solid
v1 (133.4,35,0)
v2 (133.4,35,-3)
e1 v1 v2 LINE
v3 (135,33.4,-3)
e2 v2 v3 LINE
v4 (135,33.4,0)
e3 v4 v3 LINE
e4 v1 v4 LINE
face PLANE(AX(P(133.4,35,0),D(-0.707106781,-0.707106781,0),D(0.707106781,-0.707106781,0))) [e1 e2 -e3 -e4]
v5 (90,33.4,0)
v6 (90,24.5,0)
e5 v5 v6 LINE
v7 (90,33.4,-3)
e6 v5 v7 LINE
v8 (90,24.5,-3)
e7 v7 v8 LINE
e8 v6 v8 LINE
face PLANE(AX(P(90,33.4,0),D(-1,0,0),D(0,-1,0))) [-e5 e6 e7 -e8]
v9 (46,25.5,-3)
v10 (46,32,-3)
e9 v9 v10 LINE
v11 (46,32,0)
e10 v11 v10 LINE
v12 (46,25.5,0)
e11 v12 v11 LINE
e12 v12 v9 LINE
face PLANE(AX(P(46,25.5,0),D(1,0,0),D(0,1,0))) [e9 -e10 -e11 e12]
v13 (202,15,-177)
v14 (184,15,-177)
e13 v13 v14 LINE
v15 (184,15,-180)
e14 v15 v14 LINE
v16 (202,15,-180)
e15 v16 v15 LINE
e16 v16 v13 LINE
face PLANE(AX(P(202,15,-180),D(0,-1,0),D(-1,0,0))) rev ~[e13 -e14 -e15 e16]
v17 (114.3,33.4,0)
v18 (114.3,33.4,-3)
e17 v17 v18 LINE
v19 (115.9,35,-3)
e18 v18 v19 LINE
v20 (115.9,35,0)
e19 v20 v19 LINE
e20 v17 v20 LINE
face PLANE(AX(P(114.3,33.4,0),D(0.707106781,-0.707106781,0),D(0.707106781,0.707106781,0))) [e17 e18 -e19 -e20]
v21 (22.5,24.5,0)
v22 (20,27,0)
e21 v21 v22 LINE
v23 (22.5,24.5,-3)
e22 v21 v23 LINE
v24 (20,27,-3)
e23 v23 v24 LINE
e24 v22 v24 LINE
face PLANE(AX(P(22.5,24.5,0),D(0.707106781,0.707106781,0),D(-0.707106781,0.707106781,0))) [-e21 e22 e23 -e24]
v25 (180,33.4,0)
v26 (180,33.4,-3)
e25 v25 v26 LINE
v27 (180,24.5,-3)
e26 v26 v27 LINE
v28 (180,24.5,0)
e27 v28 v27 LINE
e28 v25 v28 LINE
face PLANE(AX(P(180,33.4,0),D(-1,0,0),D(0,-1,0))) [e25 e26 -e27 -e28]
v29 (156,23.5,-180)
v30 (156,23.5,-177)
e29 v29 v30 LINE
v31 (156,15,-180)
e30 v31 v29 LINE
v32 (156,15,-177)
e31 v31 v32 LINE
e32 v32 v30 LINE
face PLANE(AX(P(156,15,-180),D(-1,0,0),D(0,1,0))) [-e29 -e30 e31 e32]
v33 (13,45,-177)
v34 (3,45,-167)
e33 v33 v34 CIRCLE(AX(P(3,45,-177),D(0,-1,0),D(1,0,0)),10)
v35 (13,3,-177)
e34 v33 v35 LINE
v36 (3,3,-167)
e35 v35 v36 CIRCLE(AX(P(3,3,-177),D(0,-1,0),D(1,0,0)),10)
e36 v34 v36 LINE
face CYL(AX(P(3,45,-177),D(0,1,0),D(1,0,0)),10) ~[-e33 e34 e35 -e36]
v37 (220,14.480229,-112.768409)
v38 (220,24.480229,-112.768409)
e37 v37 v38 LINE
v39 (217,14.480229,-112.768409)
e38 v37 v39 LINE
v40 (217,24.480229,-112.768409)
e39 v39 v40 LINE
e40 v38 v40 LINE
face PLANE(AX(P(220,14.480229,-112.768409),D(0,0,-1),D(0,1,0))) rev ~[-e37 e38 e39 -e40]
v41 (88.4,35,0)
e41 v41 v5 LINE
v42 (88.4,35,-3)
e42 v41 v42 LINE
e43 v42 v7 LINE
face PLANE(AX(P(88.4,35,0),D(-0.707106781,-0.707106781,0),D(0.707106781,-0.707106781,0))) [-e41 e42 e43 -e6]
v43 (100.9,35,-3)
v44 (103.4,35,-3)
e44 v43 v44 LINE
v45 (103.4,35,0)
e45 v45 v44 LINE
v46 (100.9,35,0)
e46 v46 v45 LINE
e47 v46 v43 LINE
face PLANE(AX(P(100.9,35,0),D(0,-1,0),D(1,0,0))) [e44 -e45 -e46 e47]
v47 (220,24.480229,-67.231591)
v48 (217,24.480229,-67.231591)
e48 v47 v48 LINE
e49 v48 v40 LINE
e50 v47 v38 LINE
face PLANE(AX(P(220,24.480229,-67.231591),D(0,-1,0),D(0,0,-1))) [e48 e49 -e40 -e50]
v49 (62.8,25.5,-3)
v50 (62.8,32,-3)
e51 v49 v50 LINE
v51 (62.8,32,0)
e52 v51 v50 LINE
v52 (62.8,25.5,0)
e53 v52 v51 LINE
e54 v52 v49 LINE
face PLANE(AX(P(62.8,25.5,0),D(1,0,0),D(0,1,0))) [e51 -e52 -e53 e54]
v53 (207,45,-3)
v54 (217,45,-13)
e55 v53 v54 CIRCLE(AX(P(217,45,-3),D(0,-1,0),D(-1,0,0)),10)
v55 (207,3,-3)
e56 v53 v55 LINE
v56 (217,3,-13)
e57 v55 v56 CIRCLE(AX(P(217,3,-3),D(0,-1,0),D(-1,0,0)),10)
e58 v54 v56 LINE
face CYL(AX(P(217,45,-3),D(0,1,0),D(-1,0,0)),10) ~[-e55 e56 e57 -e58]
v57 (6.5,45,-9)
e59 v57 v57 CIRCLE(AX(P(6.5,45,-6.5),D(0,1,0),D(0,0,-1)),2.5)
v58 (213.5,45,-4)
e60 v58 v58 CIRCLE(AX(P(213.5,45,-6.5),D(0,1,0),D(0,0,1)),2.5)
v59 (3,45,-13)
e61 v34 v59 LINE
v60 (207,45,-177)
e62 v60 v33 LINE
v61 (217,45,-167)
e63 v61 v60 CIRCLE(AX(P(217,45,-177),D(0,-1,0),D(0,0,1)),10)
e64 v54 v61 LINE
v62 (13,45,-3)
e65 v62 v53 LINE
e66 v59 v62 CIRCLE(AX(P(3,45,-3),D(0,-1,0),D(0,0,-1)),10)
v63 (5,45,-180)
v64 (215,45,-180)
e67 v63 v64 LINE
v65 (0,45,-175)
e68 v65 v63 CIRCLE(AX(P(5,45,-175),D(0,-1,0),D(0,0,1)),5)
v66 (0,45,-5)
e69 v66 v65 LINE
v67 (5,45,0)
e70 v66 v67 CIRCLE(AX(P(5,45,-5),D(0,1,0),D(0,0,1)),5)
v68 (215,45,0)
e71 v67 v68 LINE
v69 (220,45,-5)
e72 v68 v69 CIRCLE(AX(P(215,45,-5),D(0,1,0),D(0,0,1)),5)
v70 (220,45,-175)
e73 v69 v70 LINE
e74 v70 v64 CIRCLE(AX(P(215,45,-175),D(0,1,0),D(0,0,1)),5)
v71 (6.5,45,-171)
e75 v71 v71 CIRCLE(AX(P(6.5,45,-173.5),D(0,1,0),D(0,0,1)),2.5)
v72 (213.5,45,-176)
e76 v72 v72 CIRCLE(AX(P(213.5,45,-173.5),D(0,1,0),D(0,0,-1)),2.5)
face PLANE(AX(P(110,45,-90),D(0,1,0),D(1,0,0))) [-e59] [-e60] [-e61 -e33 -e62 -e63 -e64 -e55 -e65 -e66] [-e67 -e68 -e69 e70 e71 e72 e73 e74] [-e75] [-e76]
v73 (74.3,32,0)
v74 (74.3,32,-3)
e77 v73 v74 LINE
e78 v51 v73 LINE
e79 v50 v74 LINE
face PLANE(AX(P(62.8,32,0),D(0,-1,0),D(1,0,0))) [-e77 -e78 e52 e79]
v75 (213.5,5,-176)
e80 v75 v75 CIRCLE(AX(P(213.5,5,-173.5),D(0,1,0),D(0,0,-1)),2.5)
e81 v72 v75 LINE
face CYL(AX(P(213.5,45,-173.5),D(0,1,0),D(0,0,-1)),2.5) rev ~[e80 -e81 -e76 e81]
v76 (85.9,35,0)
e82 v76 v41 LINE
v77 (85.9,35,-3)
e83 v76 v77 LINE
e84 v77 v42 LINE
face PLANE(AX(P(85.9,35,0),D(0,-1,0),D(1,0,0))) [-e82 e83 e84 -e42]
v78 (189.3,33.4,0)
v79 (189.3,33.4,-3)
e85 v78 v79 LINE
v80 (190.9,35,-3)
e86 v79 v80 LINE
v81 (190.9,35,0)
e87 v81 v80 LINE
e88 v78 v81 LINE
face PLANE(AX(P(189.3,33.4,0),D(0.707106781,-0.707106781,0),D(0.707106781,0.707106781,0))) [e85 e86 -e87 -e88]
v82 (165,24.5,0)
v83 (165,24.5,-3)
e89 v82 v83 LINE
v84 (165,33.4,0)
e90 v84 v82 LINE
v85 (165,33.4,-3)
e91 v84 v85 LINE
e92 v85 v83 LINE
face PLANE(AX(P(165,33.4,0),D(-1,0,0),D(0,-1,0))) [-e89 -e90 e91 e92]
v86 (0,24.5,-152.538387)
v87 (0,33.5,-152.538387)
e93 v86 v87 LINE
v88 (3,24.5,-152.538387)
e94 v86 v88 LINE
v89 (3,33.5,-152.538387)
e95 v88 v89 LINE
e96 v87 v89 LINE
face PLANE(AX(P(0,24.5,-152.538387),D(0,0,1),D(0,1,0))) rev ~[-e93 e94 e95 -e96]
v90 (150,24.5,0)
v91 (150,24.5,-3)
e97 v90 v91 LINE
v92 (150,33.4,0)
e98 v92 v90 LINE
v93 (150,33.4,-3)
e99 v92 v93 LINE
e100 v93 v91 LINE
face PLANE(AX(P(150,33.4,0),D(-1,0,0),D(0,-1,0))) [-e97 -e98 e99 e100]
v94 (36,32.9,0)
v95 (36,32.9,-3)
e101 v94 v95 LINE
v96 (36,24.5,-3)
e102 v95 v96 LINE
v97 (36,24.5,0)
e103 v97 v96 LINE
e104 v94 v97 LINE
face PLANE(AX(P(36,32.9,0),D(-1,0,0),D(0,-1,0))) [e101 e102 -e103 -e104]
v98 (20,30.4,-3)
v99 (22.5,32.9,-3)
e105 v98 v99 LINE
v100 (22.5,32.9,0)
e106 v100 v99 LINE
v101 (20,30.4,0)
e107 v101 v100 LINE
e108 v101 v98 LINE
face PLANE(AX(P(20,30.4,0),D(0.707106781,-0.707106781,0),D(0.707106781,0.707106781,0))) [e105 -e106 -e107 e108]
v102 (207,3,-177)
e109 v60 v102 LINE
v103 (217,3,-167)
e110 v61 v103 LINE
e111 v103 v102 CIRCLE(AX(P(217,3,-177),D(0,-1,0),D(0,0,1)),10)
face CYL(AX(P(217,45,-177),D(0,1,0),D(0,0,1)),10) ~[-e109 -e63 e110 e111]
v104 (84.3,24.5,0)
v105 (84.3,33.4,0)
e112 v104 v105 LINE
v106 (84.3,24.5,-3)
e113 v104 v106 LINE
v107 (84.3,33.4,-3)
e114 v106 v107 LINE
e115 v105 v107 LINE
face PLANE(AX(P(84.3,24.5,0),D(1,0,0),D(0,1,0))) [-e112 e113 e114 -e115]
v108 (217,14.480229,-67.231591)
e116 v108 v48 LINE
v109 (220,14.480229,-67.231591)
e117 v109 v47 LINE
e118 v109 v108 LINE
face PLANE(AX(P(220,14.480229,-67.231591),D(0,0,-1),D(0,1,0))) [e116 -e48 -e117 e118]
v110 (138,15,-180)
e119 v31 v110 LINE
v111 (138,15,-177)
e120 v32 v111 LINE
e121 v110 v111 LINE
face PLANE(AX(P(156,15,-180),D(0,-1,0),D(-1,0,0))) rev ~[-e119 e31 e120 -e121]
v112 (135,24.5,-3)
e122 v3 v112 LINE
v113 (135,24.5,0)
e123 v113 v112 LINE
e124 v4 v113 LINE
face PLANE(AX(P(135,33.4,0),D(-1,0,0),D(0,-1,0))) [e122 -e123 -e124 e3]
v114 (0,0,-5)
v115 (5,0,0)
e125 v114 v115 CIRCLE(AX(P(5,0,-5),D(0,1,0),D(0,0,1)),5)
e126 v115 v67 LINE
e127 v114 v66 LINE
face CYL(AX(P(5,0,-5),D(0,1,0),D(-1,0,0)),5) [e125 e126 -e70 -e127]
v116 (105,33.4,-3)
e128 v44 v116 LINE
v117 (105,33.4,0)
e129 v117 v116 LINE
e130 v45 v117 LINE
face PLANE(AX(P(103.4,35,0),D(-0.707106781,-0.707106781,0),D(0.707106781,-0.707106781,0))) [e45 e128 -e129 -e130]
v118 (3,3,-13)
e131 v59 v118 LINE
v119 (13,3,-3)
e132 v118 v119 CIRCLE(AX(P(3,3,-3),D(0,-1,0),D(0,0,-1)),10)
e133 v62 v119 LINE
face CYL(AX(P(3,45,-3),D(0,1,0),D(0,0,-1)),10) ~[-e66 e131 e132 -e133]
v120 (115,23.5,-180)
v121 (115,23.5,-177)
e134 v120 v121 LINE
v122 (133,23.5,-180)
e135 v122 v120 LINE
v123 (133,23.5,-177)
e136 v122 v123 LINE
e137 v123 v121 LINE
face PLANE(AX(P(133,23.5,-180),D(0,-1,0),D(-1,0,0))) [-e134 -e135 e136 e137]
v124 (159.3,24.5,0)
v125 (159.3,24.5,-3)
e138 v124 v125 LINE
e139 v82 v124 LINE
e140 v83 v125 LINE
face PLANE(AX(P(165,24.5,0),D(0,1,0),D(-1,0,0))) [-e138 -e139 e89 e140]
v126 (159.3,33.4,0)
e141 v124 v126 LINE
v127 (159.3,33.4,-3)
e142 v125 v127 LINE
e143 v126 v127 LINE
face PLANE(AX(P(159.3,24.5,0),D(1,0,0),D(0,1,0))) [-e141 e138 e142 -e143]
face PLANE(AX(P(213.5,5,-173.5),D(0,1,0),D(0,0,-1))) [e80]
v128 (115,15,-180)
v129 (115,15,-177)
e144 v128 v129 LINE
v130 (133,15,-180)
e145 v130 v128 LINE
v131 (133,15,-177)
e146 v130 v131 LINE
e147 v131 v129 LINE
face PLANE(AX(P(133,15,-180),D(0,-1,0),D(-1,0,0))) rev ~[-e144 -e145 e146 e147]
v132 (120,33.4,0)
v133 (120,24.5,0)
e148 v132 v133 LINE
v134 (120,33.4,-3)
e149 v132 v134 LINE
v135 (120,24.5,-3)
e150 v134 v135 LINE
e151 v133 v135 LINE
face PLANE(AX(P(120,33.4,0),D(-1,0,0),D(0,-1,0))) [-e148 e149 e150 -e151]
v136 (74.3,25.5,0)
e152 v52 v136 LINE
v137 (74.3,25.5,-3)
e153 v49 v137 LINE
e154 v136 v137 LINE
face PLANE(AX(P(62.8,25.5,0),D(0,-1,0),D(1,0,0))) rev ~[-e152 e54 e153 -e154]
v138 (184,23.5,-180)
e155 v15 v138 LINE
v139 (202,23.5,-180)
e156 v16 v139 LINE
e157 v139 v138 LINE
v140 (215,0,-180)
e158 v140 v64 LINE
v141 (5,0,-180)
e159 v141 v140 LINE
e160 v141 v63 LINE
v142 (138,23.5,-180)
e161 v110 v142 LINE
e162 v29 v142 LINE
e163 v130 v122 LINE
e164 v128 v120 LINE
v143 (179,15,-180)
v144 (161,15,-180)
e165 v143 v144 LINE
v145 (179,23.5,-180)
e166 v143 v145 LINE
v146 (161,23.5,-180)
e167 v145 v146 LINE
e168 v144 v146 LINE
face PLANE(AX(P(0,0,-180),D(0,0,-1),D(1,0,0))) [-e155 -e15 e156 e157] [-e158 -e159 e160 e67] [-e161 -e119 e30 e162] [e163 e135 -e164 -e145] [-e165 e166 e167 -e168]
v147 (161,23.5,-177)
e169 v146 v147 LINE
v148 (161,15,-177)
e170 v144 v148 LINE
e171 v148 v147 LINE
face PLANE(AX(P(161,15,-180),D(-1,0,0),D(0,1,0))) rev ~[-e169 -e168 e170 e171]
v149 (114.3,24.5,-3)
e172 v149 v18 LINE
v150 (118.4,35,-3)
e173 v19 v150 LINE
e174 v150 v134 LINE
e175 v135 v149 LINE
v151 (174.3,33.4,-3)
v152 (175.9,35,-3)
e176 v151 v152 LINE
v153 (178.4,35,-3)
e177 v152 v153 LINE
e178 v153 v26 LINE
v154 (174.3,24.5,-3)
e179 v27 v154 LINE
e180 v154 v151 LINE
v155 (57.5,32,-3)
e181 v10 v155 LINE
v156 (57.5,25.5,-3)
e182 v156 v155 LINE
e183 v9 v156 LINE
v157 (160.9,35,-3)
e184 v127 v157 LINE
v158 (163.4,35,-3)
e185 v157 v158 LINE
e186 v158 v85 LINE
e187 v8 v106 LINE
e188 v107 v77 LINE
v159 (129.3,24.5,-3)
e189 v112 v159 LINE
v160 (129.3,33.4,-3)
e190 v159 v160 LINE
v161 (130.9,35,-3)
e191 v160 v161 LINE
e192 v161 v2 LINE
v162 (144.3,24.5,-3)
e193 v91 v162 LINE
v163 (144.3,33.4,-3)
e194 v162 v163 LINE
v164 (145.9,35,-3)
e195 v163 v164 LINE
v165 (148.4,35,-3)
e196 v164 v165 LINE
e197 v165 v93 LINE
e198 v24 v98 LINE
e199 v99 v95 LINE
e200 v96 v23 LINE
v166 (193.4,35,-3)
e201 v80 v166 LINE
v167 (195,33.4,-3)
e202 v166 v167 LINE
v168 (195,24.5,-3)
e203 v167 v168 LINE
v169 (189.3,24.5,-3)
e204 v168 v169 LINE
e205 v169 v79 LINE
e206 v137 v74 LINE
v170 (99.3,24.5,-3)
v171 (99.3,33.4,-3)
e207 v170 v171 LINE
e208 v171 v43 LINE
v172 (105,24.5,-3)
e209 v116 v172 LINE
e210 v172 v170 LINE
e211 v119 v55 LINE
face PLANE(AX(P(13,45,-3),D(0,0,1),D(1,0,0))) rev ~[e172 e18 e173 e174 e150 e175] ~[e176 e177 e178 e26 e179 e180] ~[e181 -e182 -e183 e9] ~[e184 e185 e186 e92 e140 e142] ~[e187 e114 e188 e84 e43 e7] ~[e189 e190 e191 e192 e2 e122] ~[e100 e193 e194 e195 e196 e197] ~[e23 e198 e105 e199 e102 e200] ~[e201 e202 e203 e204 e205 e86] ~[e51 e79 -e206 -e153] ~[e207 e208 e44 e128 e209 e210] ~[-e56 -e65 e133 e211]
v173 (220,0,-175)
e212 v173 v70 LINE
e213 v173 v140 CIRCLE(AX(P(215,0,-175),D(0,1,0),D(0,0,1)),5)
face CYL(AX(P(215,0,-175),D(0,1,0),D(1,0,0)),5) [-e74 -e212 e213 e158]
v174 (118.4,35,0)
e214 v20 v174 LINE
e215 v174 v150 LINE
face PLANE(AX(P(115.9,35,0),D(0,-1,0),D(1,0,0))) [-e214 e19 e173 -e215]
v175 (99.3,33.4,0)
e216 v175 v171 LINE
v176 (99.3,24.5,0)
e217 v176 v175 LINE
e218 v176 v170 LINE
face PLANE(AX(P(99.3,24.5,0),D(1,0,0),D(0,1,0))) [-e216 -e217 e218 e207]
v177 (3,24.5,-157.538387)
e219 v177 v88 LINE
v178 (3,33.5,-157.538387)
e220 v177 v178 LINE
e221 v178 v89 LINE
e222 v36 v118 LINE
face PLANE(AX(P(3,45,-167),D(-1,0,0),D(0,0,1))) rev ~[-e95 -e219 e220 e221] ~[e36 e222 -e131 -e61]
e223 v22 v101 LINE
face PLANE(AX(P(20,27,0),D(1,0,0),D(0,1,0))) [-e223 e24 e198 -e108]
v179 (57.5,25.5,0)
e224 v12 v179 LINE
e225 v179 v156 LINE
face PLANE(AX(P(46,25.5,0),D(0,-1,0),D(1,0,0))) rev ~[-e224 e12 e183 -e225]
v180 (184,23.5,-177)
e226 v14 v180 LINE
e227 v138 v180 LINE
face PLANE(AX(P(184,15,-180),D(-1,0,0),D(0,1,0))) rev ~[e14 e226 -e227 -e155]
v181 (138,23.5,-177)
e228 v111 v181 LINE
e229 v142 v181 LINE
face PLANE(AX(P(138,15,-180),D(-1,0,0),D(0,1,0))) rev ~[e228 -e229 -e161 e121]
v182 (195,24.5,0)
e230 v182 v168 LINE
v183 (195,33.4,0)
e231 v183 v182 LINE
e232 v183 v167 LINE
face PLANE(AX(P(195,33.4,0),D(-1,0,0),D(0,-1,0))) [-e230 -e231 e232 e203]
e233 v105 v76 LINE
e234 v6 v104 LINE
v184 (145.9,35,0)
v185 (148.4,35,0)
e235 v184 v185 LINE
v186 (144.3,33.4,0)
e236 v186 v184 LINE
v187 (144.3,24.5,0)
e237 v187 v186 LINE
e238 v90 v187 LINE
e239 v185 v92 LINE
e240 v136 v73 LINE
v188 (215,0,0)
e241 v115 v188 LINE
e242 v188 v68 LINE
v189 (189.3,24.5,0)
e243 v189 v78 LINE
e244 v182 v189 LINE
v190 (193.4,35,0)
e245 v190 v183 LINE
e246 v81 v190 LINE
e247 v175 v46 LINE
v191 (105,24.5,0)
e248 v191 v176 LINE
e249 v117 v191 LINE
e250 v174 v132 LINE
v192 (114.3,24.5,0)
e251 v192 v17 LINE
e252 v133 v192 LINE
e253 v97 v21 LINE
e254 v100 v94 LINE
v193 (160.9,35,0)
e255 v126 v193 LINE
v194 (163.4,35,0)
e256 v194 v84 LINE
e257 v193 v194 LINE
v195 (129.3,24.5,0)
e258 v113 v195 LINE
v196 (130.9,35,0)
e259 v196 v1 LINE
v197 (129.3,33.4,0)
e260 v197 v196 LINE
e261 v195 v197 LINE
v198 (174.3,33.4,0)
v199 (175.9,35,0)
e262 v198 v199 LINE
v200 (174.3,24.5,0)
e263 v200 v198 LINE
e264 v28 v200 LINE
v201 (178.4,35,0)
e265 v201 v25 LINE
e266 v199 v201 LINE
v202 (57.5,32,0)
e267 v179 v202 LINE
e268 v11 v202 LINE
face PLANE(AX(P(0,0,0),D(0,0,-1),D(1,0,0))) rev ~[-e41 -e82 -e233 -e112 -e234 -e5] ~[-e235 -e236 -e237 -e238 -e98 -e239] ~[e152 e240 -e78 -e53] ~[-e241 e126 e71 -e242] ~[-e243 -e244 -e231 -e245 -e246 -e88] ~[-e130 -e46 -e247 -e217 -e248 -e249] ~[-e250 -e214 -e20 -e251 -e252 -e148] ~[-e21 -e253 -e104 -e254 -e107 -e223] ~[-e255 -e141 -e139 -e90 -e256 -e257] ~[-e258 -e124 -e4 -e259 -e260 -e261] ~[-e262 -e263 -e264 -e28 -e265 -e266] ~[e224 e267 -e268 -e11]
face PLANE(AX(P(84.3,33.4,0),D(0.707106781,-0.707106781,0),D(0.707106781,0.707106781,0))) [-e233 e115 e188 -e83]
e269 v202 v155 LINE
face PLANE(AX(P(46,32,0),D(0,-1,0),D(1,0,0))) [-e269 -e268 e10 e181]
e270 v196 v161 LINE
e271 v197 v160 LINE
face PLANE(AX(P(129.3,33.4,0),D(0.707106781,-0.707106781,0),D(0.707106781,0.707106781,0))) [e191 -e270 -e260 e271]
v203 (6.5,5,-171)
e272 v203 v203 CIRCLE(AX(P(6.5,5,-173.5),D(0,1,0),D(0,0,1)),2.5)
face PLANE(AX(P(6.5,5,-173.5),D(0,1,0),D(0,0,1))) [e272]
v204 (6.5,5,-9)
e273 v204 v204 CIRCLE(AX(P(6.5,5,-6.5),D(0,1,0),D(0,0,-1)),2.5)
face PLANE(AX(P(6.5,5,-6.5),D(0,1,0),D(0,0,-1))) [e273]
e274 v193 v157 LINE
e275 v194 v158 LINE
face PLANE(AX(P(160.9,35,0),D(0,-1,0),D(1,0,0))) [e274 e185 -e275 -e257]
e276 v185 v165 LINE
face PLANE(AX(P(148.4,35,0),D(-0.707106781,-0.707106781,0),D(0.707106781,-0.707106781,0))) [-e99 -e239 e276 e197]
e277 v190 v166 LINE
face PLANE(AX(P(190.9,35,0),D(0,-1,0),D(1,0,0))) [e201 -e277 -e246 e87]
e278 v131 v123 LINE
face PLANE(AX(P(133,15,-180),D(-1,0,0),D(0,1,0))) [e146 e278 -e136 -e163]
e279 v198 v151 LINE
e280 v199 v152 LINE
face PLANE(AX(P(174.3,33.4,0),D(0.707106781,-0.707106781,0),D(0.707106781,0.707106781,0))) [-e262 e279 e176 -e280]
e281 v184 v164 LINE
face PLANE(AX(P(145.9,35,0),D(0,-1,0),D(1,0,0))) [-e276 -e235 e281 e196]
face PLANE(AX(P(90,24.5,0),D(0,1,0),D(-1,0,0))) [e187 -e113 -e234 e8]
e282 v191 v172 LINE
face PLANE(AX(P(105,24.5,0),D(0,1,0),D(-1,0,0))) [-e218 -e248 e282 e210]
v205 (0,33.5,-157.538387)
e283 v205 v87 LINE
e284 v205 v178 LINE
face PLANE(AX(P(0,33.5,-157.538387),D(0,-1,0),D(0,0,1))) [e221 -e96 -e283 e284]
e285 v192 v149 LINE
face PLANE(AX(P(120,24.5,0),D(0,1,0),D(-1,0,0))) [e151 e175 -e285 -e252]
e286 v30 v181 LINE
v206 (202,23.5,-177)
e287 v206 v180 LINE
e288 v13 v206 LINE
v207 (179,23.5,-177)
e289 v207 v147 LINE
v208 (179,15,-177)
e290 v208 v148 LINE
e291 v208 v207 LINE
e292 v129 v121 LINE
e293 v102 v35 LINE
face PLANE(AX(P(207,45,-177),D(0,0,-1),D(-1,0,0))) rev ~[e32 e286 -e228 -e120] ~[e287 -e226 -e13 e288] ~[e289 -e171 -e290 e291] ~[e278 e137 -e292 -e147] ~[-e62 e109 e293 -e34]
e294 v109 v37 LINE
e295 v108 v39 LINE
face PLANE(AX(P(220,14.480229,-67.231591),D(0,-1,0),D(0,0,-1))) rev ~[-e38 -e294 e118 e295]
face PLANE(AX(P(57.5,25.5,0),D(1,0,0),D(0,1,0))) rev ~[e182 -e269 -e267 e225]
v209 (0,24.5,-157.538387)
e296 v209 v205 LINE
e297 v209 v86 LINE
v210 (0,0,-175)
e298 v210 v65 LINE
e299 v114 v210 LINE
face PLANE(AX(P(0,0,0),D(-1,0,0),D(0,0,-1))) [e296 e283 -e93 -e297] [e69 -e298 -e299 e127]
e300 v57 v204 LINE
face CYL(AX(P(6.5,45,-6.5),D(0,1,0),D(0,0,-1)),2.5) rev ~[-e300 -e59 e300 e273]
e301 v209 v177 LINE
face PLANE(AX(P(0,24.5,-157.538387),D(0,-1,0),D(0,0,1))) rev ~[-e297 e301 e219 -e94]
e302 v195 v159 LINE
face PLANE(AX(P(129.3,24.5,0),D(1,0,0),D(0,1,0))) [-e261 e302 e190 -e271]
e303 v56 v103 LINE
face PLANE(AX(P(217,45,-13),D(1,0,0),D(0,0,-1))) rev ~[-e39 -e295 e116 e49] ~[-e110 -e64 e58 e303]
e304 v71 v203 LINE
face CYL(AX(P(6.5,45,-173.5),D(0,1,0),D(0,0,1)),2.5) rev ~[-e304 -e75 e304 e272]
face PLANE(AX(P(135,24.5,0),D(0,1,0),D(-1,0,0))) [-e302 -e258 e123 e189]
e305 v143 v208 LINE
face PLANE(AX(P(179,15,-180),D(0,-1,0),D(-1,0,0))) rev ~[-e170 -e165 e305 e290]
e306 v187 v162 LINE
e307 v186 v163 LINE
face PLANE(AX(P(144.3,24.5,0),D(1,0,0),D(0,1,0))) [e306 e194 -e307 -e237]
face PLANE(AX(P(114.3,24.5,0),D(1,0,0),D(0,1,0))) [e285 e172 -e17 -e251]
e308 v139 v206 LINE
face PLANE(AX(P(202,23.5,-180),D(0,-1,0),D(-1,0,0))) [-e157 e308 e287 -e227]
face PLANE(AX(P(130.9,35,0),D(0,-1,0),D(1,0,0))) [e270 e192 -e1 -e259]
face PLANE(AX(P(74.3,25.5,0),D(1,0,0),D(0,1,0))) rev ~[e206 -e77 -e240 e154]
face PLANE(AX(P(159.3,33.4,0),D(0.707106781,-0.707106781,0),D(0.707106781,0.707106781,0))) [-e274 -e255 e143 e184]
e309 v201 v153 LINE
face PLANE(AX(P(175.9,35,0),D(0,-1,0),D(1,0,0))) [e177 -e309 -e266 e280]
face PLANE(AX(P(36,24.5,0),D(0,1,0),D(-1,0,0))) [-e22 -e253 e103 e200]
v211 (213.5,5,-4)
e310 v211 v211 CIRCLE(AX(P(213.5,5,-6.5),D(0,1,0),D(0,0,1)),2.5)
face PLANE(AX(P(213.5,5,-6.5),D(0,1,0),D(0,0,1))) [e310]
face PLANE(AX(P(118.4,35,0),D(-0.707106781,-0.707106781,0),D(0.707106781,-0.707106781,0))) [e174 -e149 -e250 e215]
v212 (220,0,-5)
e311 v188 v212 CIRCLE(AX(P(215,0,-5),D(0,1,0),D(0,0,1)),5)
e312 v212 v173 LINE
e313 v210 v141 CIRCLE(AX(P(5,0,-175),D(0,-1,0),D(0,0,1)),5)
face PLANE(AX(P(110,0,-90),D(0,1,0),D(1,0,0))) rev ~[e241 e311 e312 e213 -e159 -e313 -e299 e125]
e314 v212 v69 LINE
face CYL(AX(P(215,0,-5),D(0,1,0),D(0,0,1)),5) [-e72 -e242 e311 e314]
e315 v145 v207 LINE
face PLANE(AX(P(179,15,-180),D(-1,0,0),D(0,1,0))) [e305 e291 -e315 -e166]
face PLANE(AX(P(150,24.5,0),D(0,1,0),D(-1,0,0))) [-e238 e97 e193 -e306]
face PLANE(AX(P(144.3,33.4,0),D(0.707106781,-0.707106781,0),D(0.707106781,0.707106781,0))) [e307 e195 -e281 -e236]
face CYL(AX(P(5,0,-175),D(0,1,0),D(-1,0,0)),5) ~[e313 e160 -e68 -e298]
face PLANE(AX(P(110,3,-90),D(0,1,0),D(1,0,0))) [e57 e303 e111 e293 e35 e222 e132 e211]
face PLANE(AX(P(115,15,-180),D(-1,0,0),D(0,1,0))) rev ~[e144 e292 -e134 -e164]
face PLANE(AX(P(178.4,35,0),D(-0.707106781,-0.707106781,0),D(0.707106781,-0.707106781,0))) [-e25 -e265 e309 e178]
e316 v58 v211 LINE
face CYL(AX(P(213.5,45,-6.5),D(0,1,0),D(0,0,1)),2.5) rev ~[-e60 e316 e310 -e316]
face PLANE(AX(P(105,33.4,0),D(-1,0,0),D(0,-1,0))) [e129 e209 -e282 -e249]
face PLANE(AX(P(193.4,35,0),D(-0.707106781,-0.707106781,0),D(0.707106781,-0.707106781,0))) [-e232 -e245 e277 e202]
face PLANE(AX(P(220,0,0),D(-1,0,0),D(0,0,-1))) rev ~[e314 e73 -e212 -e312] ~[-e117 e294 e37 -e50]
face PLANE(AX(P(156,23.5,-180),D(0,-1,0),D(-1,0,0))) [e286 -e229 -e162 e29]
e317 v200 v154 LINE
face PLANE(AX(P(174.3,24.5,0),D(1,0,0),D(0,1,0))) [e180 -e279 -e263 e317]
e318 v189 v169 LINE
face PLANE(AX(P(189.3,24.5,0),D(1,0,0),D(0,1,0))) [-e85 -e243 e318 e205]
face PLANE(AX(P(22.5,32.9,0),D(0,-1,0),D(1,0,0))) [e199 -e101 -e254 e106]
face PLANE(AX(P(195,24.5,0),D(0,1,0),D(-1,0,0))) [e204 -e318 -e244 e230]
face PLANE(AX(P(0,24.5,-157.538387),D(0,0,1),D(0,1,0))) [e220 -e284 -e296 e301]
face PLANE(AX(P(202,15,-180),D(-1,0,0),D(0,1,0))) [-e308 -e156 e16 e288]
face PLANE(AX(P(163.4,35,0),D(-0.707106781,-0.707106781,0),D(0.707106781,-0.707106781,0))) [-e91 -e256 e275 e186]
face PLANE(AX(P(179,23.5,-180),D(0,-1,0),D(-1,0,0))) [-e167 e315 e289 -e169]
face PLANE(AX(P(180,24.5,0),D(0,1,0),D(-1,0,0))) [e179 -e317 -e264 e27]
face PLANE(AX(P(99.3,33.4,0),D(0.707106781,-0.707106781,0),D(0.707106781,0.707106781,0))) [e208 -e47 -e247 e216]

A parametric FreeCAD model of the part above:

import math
import FreeCAD as App
import Part
import Sketcher

V = App.Vector


def edges_at(feature, points):
    """Names of the edges that pass closest to the given points."""
    edges = feature.Shape.Edges
    near = lambda p: min(range(len(edges)), key=lambda i: edges[i].distToShape(Part.Vertex(*p))[0])
    return sorted({f"Edge{near(p) + 1}" for p in points})

doc = App.newDocument("Part")
body = doc.addObject("PartDesign::Body", "Body")

# Sketch on XZ plane
sketch1 = body.newObject("Sketcher::SketchObject", "Sketch")
sketch1.AttachmentSupport = (doc.getObject("XZ_Plane"), [""])
sketch1.MapMode = "FlatFace"
sketch1.addGeometry([
    Part.LineSegment(V(0, -180, 0), V(0, 0, 0)),
    Part.LineSegment(V(0, 0, 0), V(220, 0, 0)),
    Part.LineSegment(V(220, 0, 0), V(220, -180, 0)),
    Part.LineSegment(V(220, -180, 0), V(0, -180, 0)),
], False)
sketch1.addConstraint([
    Sketcher.Constraint("Coincident", 0, 2, 1, 1),
    Sketcher.Constraint("Coincident", 1, 2, 2, 1),
    Sketcher.Constraint("Coincident", 2, 2, 3, 1),
    Sketcher.Constraint("Coincident", 3, 2, 0, 1),
    Sketcher.Constraint("Vertical", 0),
    Sketcher.Constraint("Horizontal", 1),
    Sketcher.Constraint("Vertical", 2),
    Sketcher.Constraint("Horizontal", 3),
    Sketcher.Constraint("Coincident", 0, 2, -1, 1),
    Sketcher.Constraint("DistanceX", 1, 1, 1, 2, 220.0),
    Sketcher.Constraint("DistanceY", 0, 1, 0, 2, 180.0),
])
pad1 = body.newObject("PartDesign::Pad", "Pad")
pad1.Profile = sketch1
pad1.Length = 45
pad1.Reversed = True
doc.recompute()

fillet = body.newObject("PartDesign::Fillet", "Fillet")
fillet.Base = (pad1, edges_at(pad1, [
    (0, 22.5, -180),
    (220, 22.5, -180),
    (220, 22.5, 0),
    (0, 22.5, 0),
]))
fillet.Radius = 5

# Sketch on XZ plane
sketch2 = body.newObject("Sketcher::SketchObject", "Sketch001")
sketch2.AttachmentSupport = (doc.getObject("XZ_Plane"), [""])
sketch2.MapMode = "FlatFace"
sketch2.AttachmentOffset = App.Placement(V(0, 0, -45), App.Rotation())
sketch2.addGeometry([
    Part.LineSegment(V(207, -177, 0), V(13, -177, 0)),  # 0
    Part.ArcOfCircle(Part.Circle(V(3, -177, 0), V(0, 0, 1), 10), math.radians(0), math.radians(90)),  # 1
    Part.LineSegment(V(3, -167, 0), V(3, -13, 0)),  # 2
    Part.ArcOfCircle(Part.Circle(V(3, -3, 0), V(0, 0, 1), 10), math.radians(-90), math.radians(0)),  # 3
    Part.LineSegment(V(13, -3, 0), V(207, -3, 0)),  # 4
    Part.ArcOfCircle(Part.Circle(V(217, -3, 0), V(0, 0, 1), 10), math.radians(180), math.radians(270)),  # 5
    Part.LineSegment(V(217, -13, 0), V(217, -167, 0)),  # 6
    Part.ArcOfCircle(Part.Circle(V(217, -177, 0), V(0, 0, 1), 10), math.radians(90), math.radians(180)),  # 7
], False)
sketch2.addConstraint([
    Sketcher.Constraint("Coincident", 0, 2, 1, 1),
    Sketcher.Constraint("Coincident", 1, 2, 2, 1),
    Sketcher.Constraint("Coincident", 2, 2, 3, 1),
    Sketcher.Constraint("Coincident", 3, 2, 4, 1),
    Sketcher.Constraint("Coincident", 4, 2, 5, 1),
    Sketcher.Constraint("Coincident", 5, 2, 6, 1),
    Sketcher.Constraint("Coincident", 6, 2, 7, 1),
    Sketcher.Constraint("Coincident", 7, 2, 0, 1),
    Sketcher.Constraint("Horizontal", 0),
    Sketcher.Constraint("Vertical", 2),
    Sketcher.Constraint("Horizontal", 4),
    Sketcher.Constraint("Vertical", 6),
    Sketcher.Constraint("Equal", 1, 3),
    Sketcher.Constraint("Equal", 3, 5),
    Sketcher.Constraint("Equal", 5, 7),
    Sketcher.Constraint("Horizontal", 3, 3, 5, 3),
    Sketcher.Constraint("Horizontal", 1, 3, 7, 3),
    Sketcher.Constraint("Horizontal", 7, 3, 0, 2),
    Sketcher.Constraint("Horizontal", 5, 3, 3, 2),
    Sketcher.Constraint("Vertical", 1, 3, 3, 3),
    Sketcher.Constraint("Vertical", 5, 3, 7, 3),
    Sketcher.Constraint("Vertical", 3, 3, 1, 2),
    Sketcher.Constraint("Vertical", 7, 3, 5, 2),
    Sketcher.Constraint("Radius", 1, 10.0),
    Sketcher.Constraint("DistanceX", 0, 2, 0, 1, 194.0),
    Sketcher.Constraint("DistanceY", 2, 1, 2, 2, 154.0),
    Sketcher.Constraint("DistanceX", -1, 1, 1, 3, 3.0),
    Sketcher.Constraint("DistanceY", 1, 3, -1, 1, 177.0),
])
pocket1 = body.newObject("PartDesign::Pocket", "Pocket")
pocket1.Profile = sketch2
pocket1.Length = 42
pocket1.Reversed = True

# Sketch on XY plane
sketch3 = body.newObject("Sketcher::SketchObject", "Sketch002")
sketch3.AttachmentSupport = (doc.getObject("XY_Plane"), [""])
sketch3.MapMode = "FlatFace"
sketch3.addGeometry([
    Part.LineSegment(V(178.4, 35, 0), V(175.9, 35, 0)),  # 0
    Part.LineSegment(V(175.9, 35, 0), V(174.3, 33.4, 0)),  # 1
    Part.LineSegment(V(174.3, 33.4, 0), V(174.3, 24.5, 0)),  # 2
    Part.LineSegment(V(174.3, 24.5, 0), V(180, 24.5, 0)),  # 3
    Part.LineSegment(V(180, 24.5, 0), V(180, 33.4, 0)),  # 4
    Part.LineSegment(V(180, 33.4, 0), V(178.4, 35, 0)),  # 5
    Part.LineSegment(V(193.4, 35, 0), V(190.9, 35, 0)),  # 6
    Part.LineSegment(V(190.9, 35, 0), V(189.3, 33.4, 0)),  # 7
    Part.LineSegment(V(189.3, 33.4, 0), V(189.3, 24.5, 0)),  # 8
    Part.LineSegment(V(189.3, 24.5, 0), V(195, 24.5, 0)),  # 9
    Part.LineSegment(V(195, 24.5, 0), V(195, 33.4, 0)),  # 10
    Part.LineSegment(V(195, 33.4, 0), V(193.4, 35, 0)),  # 11
    Part.LineSegment(V(163.4, 35, 0), V(160.9, 35, 0)),  # 12
    Part.LineSegment(V(160.9, 35, 0), V(159.3, 33.4, 0)),  # 13
    Part.LineSegment(V(159.3, 33.4, 0), V(159.3, 24.5, 0)),  # 14
    Part.LineSegment(V(159.3, 24.5, 0), V(165, 24.5, 0)),  # 15
    Part.LineSegment(V(165, 24.5, 0), V(165, 33.4, 0)),  # 16
    Part.LineSegment(V(165, 33.4, 0), V(163.4, 35, 0)),  # 17
    Part.LineSegment(V(148.4, 35, 0), V(145.9, 35, 0)),  # 18
    Part.LineSegment(V(145.9, 35, 0), V(144.3, 33.4, 0)),  # 19
    Part.LineSegment(V(144.3, 33.4, 0), V(144.3, 24.5, 0)),  # 20
    Part.LineSegment(V(144.3, 24.5, 0), V(150, 24.5, 0)),  # 21
    Part.LineSegment(V(150, 24.5, 0), V(150, 33.4, 0)),  # 22
    Part.LineSegment(V(150, 33.4, 0), V(148.4, 35, 0)),  # 23
    Part.LineSegment(V(133.4, 35, 0), V(130.9, 35, 0)),  # 24
    Part.LineSegment(V(130.9, 35, 0), V(129.3, 33.4, 0)),  # 25
    Part.LineSegment(V(129.3, 33.4, 0), V(129.3, 24.5, 0)),  # 26
    Part.LineSegment(V(129.3, 24.5, 0), V(135, 24.5, 0)),  # 27
    Part.LineSegment(V(135, 24.5, 0), V(135, 33.4, 0)),  # 28
    Part.LineSegment(V(135, 33.4, 0), V(133.4, 35, 0)),  # 29
    Part.LineSegment(V(118.4, 35, 0), V(115.9, 35, 0)),  # 30
    Part.LineSegment(V(115.9, 35, 0), V(114.3, 33.4, 0)),  # 31
    Part.LineSegment(V(114.3, 33.4, 0), V(114.3, 24.5, 0)),  # 32
    Part.LineSegment(V(114.3, 24.5, 0), V(120, 24.5, 0)),  # 33
    Part.LineSegment(V(120, 24.5, 0), V(120, 33.4, 0)),  # 34
    Part.LineSegment(V(120, 33.4, 0), V(118.4, 35, 0)),  # 35
    Part.LineSegment(V(103.4, 35, 0), V(100.9, 35, 0)),  # 36
    Part.LineSegment(V(100.9, 35, 0), V(99.3, 33.4, 0)),  # 37
    Part.LineSegment(V(99.3, 33.4, 0), V(99.3, 24.5, 0)),  # 38
    Part.LineSegment(V(99.3, 24.5, 0), V(105, 24.5, 0)),  # 39
    Part.LineSegment(V(105, 24.5, 0), V(105, 33.4, 0)),  # 40
    Part.LineSegment(V(105, 33.4, 0), V(103.4, 35, 0)),  # 41
    Part.LineSegment(V(88.4, 35, 0), V(85.9, 35, 0)),  # 42
    Part.LineSegment(V(85.9, 35, 0), V(84.3, 33.4, 0)),  # 43
    Part.LineSegment(V(84.3, 33.4, 0), V(84.3, 24.5, 0)),  # 44
    Part.LineSegment(V(84.3, 24.5, 0), V(90, 24.5, 0)),  # 45
    Part.LineSegment(V(90, 24.5, 0), V(90, 33.4, 0)),  # 46
    Part.LineSegment(V(90, 33.4, 0), V(88.4, 35, 0)),  # 47
], False)
sketch3.addConstraint([
    Sketcher.Constraint("Coincident", 0, 2, 1, 1),
    Sketcher.Constraint("Coincident", 1, 2, 2, 1),
    Sketcher.Constraint("Coincident", 2, 2, 3, 1),
    Sketcher.Constraint("Coincident", 3, 2, 4, 1),
    Sketcher.Constraint("Coincident", 4, 2, 5, 1),
    Sketcher.Constraint("Coincident", 5, 2, 0, 1),
    Sketcher.Constraint("Coincident", 6, 2, 7, 1),
    Sketcher.Constraint("Coincident", 7, 2, 8, 1),
    Sketcher.Constraint("Coincident", 8, 2, 9, 1),
    Sketcher.Constraint("Coincident", 9, 2, 10, 1),
    Sketcher.Constraint("Coincident", 10, 2, 11, 1),
    Sketcher.Constraint("Coincident", 11, 2, 6, 1),
    Sketcher.Constraint("Coincident", 12, 2, 13, 1),
    Sketcher.Constraint("Coincident", 13, 2, 14, 1),
    Sketcher.Constraint("Coincident", 14, 2, 15, 1),
    Sketcher.Constraint("Coincident", 15, 2, 16, 1),
    Sketcher.Constraint("Coincident", 16, 2, 17, 1),
    Sketcher.Constraint("Coincident", 17, 2, 12, 1),
    Sketcher.Constraint("Coincident", 18, 2, 19, 1),
    Sketcher.Constraint("Coincident", 19, 2, 20, 1),
    Sketcher.Constraint("Coincident", 20, 2, 21, 1),
    Sketcher.Constraint("Coincident", 21, 2, 22, 1),
    Sketcher.Constraint("Coincident", 22, 2, 23, 1),
    Sketcher.Constraint("Coincident", 23, 2, 18, 1),
    Sketcher.Constraint("Coincident", 24, 2, 25, 1),
    Sketcher.Constraint("Coincident", 25, 2, 26, 1),
    Sketcher.Constraint("Coincident", 26, 2, 27, 1),
    Sketcher.Constraint("Coincident", 27, 2, 28, 1),
    Sketcher.Constraint("Coincident", 28, 2, 29, 1),
    Sketcher.Constraint("Coincident", 29, 2, 24, 1),
    Sketcher.Constraint("Coincident", 30, 2, 31, 1),
    Sketcher.Constraint("Coincident", 31, 2, 32, 1),
    Sketcher.Constraint("Coincident", 32, 2, 33, 1),
    Sketcher.Constraint("Coincident", 33, 2, 34, 1),
    Sketcher.Constraint("Coincident", 34, 2, 35, 1),
    Sketcher.Constraint("Coincident", 35, 2, 30, 1),
    Sketcher.Constraint("Coincident", 36, 2, 37, 1),
    Sketcher.Constraint("Coincident", 37, 2, 38, 1),
    Sketcher.Constraint("Coincident", 38, 2, 39, 1),
    Sketcher.Constraint("Coincident", 39, 2, 40, 1),
    Sketcher.Constraint("Coincident", 40, 2, 41, 1),
    Sketcher.Constraint("Coincident", 41, 2, 36, 1),
    Sketcher.Constraint("Coincident", 42, 2, 43, 1),
    Sketcher.Constraint("Coincident", 43, 2, 44, 1),
    Sketcher.Constraint("Coincident", 44, 2, 45, 1),
    Sketcher.Constraint("Coincident", 45, 2, 46, 1),
    Sketcher.Constraint("Coincident", 46, 2, 47, 1),
    Sketcher.Constraint("Coincident", 47, 2, 42, 1),
    Sketcher.Constraint("Horizontal", 0),
    Sketcher.Constraint("Vertical", 2),
    Sketcher.Constraint("Horizontal", 3),
    Sketcher.Constraint("Vertical", 4),
    Sketcher.Constraint("Horizontal", 6),
    Sketcher.Constraint("Vertical", 8),
    Sketcher.Constraint("Horizontal", 9),
    Sketcher.Constraint("Vertical", 10),
    Sketcher.Constraint("Horizontal", 12),
    Sketcher.Constraint("Vertical", 14),
    Sketcher.Constraint("Horizontal", 15),
    Sketcher.Constraint("Vertical", 16),
    Sketcher.Constraint("Horizontal", 18),
    Sketcher.Constraint("Vertical", 20),
    Sketcher.Constraint("Horizontal", 21),
    Sketcher.Constraint("Vertical", 22),
    Sketcher.Constraint("Horizontal", 24),
    Sketcher.Constraint("Vertical", 26),
    Sketcher.Constraint("Horizontal", 27),
    Sketcher.Constraint("Vertical", 28),
    Sketcher.Constraint("Horizontal", 30),
    Sketcher.Constraint("Vertical", 32),
    Sketcher.Constraint("Horizontal", 33),
    Sketcher.Constraint("Vertical", 34),
    Sketcher.Constraint("Horizontal", 36),
    Sketcher.Constraint("Vertical", 38),
    Sketcher.Constraint("Horizontal", 39),
    Sketcher.Constraint("Vertical", 40),
    Sketcher.Constraint("Horizontal", 42),
    Sketcher.Constraint("Vertical", 44),
    Sketcher.Constraint("Horizontal", 45),
    Sketcher.Constraint("Vertical", 46),
    Sketcher.Constraint("Perpendicular", 1, 5),
    Sketcher.Constraint("Perpendicular", 5, 7),
    Sketcher.Constraint("Perpendicular", 7, 11),
    Sketcher.Constraint("Perpendicular", 11, 13),
    Sketcher.Constraint("Perpendicular", 13, 17),
    Sketcher.Constraint("Perpendicular", 17, 19),
    Sketcher.Constraint("Perpendicular", 19, 23),
    Sketcher.Constraint("Perpendicular", 23, 25),
    Sketcher.Constraint("Perpendicular", 25, 29),
    Sketcher.Constraint("Perpendicular", 29, 31),
    Sketcher.Constraint("Perpendicular", 31, 35),
    Sketcher.Constraint("Perpendicular", 35, 37),
    Sketcher.Constraint("Perpendicular", 37, 41),
    Sketcher.Constraint("Perpendicular", 41, 43),
    Sketcher.Constraint("Perpendicular", 43, 47),
    Sketcher.Constraint("Horizontal", 1, 2, 4, 2),
    Sketcher.Constraint("Horizontal", 5, 2, 6, 2),
    Sketcher.Constraint("Horizontal", 4, 2, 7, 2),
    Sketcher.Constraint("Horizontal", 3, 2, 8, 2),
    Sketcher.Constraint("Horizontal", 7, 2, 10, 2),
    Sketcher.Constraint("Horizontal", 11, 2, 12, 2),
    Sketcher.Constraint("Horizontal", 10, 2, 13, 2),
    Sketcher.Constraint("Horizontal", 9, 2, 14, 2),
    Sketcher.Constraint("Horizontal", 13, 2, 16, 2),
    Sketcher.Constraint("Horizontal", 17, 2, 18, 2),
    Sketcher.Constraint("Horizontal", 16, 2, 19, 2),
    Sketcher.Constraint("Horizontal", 15, 2, 20, 2),
    Sketcher.Constraint("Horizontal", 19, 2, 22, 2),
    Sketcher.Constraint("Horizontal", 23, 2, 24, 2),
    Sketcher.Constraint("Horizontal", 22, 2, 25, 2),
    Sketcher.Constraint("Horizontal", 21, 2, 26, 2),
    Sketcher.Constraint("Horizontal", 25, 2, 28, 2),
    Sketcher.Constraint("Horizontal", 29, 2, 30, 2),
    Sketcher.Constraint("Horizontal", 28, 2, 31, 2),
    Sketcher.Constraint("Horizontal", 27, 2, 32, 2),
    Sketcher.Constraint("Horizontal", 31, 2, 34, 2),
    Sketcher.Constraint("Horizontal", 35, 2, 36, 2),
    Sketcher.Constraint("Horizontal", 34, 2, 37, 2),
    Sketcher.Constraint("Horizontal", 33, 2, 38, 2),
    Sketcher.Constraint("Horizontal", 37, 2, 40, 2),
    Sketcher.Constraint("Horizontal", 41, 2, 42, 2),
    Sketcher.Constraint("Horizontal", 40, 2, 43, 2),
    Sketcher.Constraint("Horizontal", 39, 2, 44, 2),
    Sketcher.Constraint("Horizontal", 43, 2, 46, 2),
    Sketcher.Constraint("Equal", 0, 6),
    Sketcher.Constraint("Equal", 6, 12),
    Sketcher.Constraint("Equal", 12, 18),
    Sketcher.Constraint("Equal", 18, 24),
    Sketcher.Constraint("Equal", 24, 30),
    Sketcher.Constraint("Equal", 30, 36),
    Sketcher.Constraint("Equal", 36, 42),
    Sketcher.Constraint("Equal", 1, 5),
    Sketcher.Constraint("DistanceX", 0, 2, 0, 1, 2.5),
    Sketcher.Constraint("DistanceX", 3, 1, 3, 2, 5.7),
    Sketcher.Constraint("DistanceY", 2, 2, 2, 1, 8.9),
    Sketcher.Constraint("DistanceY", -1, 1, 0, 2, 35.0),
    Sketcher.Constraint("DistanceX", -1, 1, 3, 2, 180.0),
    Sketcher.Constraint("DistanceX", -1, 1, 9, 2, 195.0),
    Sketcher.Constraint("DistanceX", -1, 1, 15, 2, 165.0),
    Sketcher.Constraint("DistanceX", -1, 1, 21, 2, 150.0),
    Sketcher.Constraint("DistanceX", -1, 1, 27, 2, 135.0),
    Sketcher.Constraint("DistanceX", -1, 1, 33, 2, 120.0),
    Sketcher.Constraint("DistanceX", -1, 1, 39, 2, 105.0),
    Sketcher.Constraint("DistanceX", -1, 1, 45, 2, 90.0),
])
pocket2 = body.newObject("PartDesign::Pocket", "Pocket001")
pocket2.Profile = sketch3
pocket2.Length = 5

# Sketch on XY plane
sketch4 = body.newObject("Sketcher::SketchObject", "Sketch003")
sketch4.AttachmentSupport = (doc.getObject("XY_Plane"), [""])
sketch4.MapMode = "FlatFace"
sketch4.addGeometry([
    Part.LineSegment(V(36, 32.9, 0), V(22.5, 32.9, 0)),  # 0
    Part.LineSegment(V(22.5, 32.9, 0), V(20, 30.4, 0)),  # 1
    Part.LineSegment(V(20, 30.4, 0), V(20, 27, 0)),  # 2
    Part.LineSegment(V(20, 27, 0), V(22.5, 24.5, 0)),  # 3
    Part.LineSegment(V(22.5, 24.5, 0), V(36, 24.5, 0)),  # 4
    Part.LineSegment(V(36, 24.5, 0), V(36, 32.9, 0)),  # 5
], False)
sketch4.addConstraint([
    Sketcher.Constraint("Coincident", 0, 2, 1, 1),
    Sketcher.Constraint("Coincident", 1, 2, 2, 1),
    Sketcher.Constraint("Coincident", 2, 2, 3, 1),
    Sketcher.Constraint("Coincident", 3, 2, 4, 1),
    Sketcher.Constraint("Coincident", 4, 2, 5, 1),
    Sketcher.Constraint("Coincident", 5, 2, 0, 1),
    Sketcher.Constraint("Horizontal", 0),
    Sketcher.Constraint("Vertical", 2),
    Sketcher.Constraint("Horizontal", 4),
    Sketcher.Constraint("Vertical", 5),
    Sketcher.Constraint("Perpendicular", 1, 3),
    Sketcher.Constraint("Vertical", 0, 2, 3, 2),
    Sketcher.Constraint("Equal", 1, 3),
    Sketcher.Constraint("DistanceX", 0, 2, 0, 1, 13.5),
    Sketcher.Constraint("DistanceY", 2, 2, 2, 1, 3.4),
    Sketcher.Constraint("DistanceY", 5, 1, 5, 2, 8.4),
    Sketcher.Constraint("DistanceX", -1, 1, 1, 2, 20.0),
    Sketcher.Constraint("DistanceY", -1, 1, 2, 2, 27.0),
])
pocket3 = body.newObject("PartDesign::Pocket", "Pocket002")
pocket3.Profile = sketch4
pocket3.Length = 5

# Sketch on XY plane
sketch5 = body.newObject("Sketcher::SketchObject", "Sketch004")
sketch5.AttachmentSupport = (doc.getObject("XY_Plane"), [""])
sketch5.MapMode = "FlatFace"
sketch5.addGeometry([
    Part.LineSegment(V(46, 32, 0), V(46, 25.5, 0)),  # 0
    Part.LineSegment(V(46, 25.5, 0), V(57.5, 25.5, 0)),  # 1
    Part.LineSegment(V(57.5, 25.5, 0), V(57.5, 32, 0)),  # 2
    Part.LineSegment(V(57.5, 32, 0), V(46, 32, 0)),  # 3
    Part.LineSegment(V(62.8, 32, 0), V(62.8, 25.5, 0)),  # 4
    Part.LineSegment(V(62.8, 25.5, 0), V(74.3, 25.5, 0)),  # 5
    Part.LineSegment(V(74.3, 25.5, 0), V(74.3, 32, 0)),  # 6
    Part.LineSegment(V(74.3, 32, 0), V(62.8, 32, 0)),  # 7
], False)
sketch5.addConstraint([
    Sketcher.Constraint("Coincident", 0, 2, 1, 1),
    Sketcher.Constraint("Coincident", 1, 2, 2, 1),
    Sketcher.Constraint("Coincident", 2, 2, 3, 1),
    Sketcher.Constraint("Coincident", 3, 2, 0, 1),
    Sketcher.Constraint("Coincident", 4, 2, 5, 1),
    Sketcher.Constraint("Coincident", 5, 2, 6, 1),
    Sketcher.Constraint("Coincident", 6, 2, 7, 1),
    Sketcher.Constraint("Coincident", 7, 2, 4, 1),
    Sketcher.Constraint("Vertical", 0),
    Sketcher.Constraint("Horizontal", 1),
    Sketcher.Constraint("Vertical", 2),
    Sketcher.Constraint("Horizontal", 3),
    Sketcher.Constraint("Vertical", 4),
    Sketcher.Constraint("Horizontal", 5),
    Sketcher.Constraint("Vertical", 6),
    Sketcher.Constraint("Horizontal", 7),
    Sketcher.Constraint("Horizontal", 1, 2, 4, 2),
    Sketcher.Constraint("Horizontal", 3, 2, 6, 2),
    Sketcher.Constraint("Equal", 3, 5),
    Sketcher.Constraint("DistanceX", 1, 1, 1, 2, 11.5),
    Sketcher.Constraint("DistanceY", 0, 2, 0, 1, 6.5),
    Sketcher.Constraint("DistanceX", -1, 1, 0, 2, 46.0),
    Sketcher.Constraint("DistanceY", -1, 1, 2, 2, 32.0),
    Sketcher.Constraint("DistanceX", -1, 1, 4, 2, 62.8),
])
pocket4 = body.newObject("PartDesign::Pocket", "Pocket003")
pocket4.Profile = sketch5
pocket4.Length = 5

# Sketch on YZ plane
sketch6 = body.newObject("Sketcher::SketchObject", "Sketch005")
sketch6.AttachmentSupport = (doc.getObject("YZ_Plane"), [""])
sketch6.MapMode = "FlatFace"
sketch6.AttachmentOffset = App.Placement(V(0, 0, 220), App.Rotation())
sketch6.addGeometry([
    Part.LineSegment(V(24.480229, -67.231591, 0), V(14.480229, -67.231591, 0)),
    Part.LineSegment(V(14.480229, -67.231591, 0), V(14.480229, -112.768409, 0)),
    Part.LineSegment(V(14.480229, -112.768409, 0), V(24.480229, -112.768409, 0)),
    Part.LineSegment(V(24.480229, -112.768409, 0), V(24.480229, -67.231591, 0)),
], False)
sketch6.addConstraint([
    Sketcher.Constraint("Coincident", 0, 2, 1, 1),
    Sketcher.Constraint("Coincident", 1, 2, 2, 1),
    Sketcher.Constraint("Coincident", 2, 2, 3, 1),
    Sketcher.Constraint("Coincident", 3, 2, 0, 1),
    Sketcher.Constraint("Horizontal", 0),
    Sketcher.Constraint("Vertical", 1),
    Sketcher.Constraint("Horizontal", 2),
    Sketcher.Constraint("Vertical", 3),
    Sketcher.Constraint("DistanceX", 0, 2, 0, 1, 10.0),
    Sketcher.Constraint("DistanceY", 1, 2, 1, 1, 45.536818),
    Sketcher.Constraint("DistanceX", -1, 1, 0, 2, 14.480229),
    Sketcher.Constraint("DistanceY", 0, 2, -1, 1, 67.231591),
])
pocket5 = body.newObject("PartDesign::Pocket", "Pocket004")
pocket5.Profile = sketch6
pocket5.Length = 5

# Sketch on XY plane
sketch7 = body.newObject("Sketcher::SketchObject", "Sketch006")
sketch7.AttachmentSupport = (doc.getObject("XY_Plane"), [""])
sketch7.MapMode = "FlatFace"
sketch7.AttachmentOffset = App.Placement(V(0, 0, -180), App.Rotation())
sketch7.addGeometry([
    Part.LineSegment(V(202, 23.5, 0), V(202, 15, 0)),  # 0
    Part.LineSegment(V(202, 15, 0), V(184, 15, 0)),  # 1
    Part.LineSegment(V(184, 15, 0), V(184, 23.5, 0)),  # 2
    Part.LineSegment(V(184, 23.5, 0), V(202, 23.5, 0)),  # 3
    Part.LineSegment(V(179, 23.5, 0), V(179, 15, 0)),  # 4
    Part.LineSegment(V(179, 15, 0), V(161, 15, 0)),  # 5
    Part.LineSegment(V(161, 15, 0), V(161, 23.5, 0)),  # 6
    Part.LineSegment(V(161, 23.5, 0), V(179, 23.5, 0)),  # 7
    Part.LineSegment(V(156, 23.5, 0), V(156, 15, 0)),  # 8
    Part.LineSegment(V(156, 15, 0), V(138, 15, 0)),  # 9
    Part.LineSegment(V(138, 15, 0), V(138, 23.5, 0)),  # 10
    Part.LineSegment(V(138, 23.5, 0), V(156, 23.5, 0)),  # 11
    Part.LineSegment(V(133, 23.5, 0), V(133, 15, 0)),  # 12
    Part.LineSegment(V(133, 15, 0), V(115, 15, 0)),  # 13
    Part.LineSegment(V(115, 15, 0), V(115, 23.5, 0)),  # 14
    Part.LineSegment(V(115, 23.5, 0), V(133, 23.5, 0)),  # 15
], False)
sketch7.addConstraint([
    Sketcher.Constraint("Coincident", 0, 2, 1, 1),
    Sketcher.Constraint("Coincident", 1, 2, 2, 1),
    Sketcher.Constraint("Coincident", 2, 2, 3, 1),
    Sketcher.Constraint("Coincident", 3, 2, 0, 1),
    Sketcher.Constraint("Coincident", 4, 2, 5, 1),
    Sketcher.Constraint("Coincident", 5, 2, 6, 1),
    Sketcher.Constraint("Coincident", 6, 2, 7, 1),
    Sketcher.Constraint("Coincident", 7, 2, 4, 1),
    Sketcher.Constraint("Coincident", 8, 2, 9, 1),
    Sketcher.Constraint("Coincident", 9, 2, 10, 1),
    Sketcher.Constraint("Coincident", 10, 2, 11, 1),
    Sketcher.Constraint("Coincident", 11, 2, 8, 1),
    Sketcher.Constraint("Coincident", 12, 2, 13, 1),
    Sketcher.Constraint("Coincident", 13, 2, 14, 1),
    Sketcher.Constraint("Coincident", 14, 2, 15, 1),
    Sketcher.Constraint("Coincident", 15, 2, 12, 1),
    Sketcher.Constraint("Vertical", 0),
    Sketcher.Constraint("Horizontal", 1),
    Sketcher.Constraint("Vertical", 2),
    Sketcher.Constraint("Horizontal", 3),
    Sketcher.Constraint("Vertical", 4),
    Sketcher.Constraint("Horizontal", 5),
    Sketcher.Constraint("Vertical", 6),
    Sketcher.Constraint("Horizontal", 7),
    Sketcher.Constraint("Vertical", 8),
    Sketcher.Constraint("Horizontal", 9),
    Sketcher.Constraint("Vertical", 10),
    Sketcher.Constraint("Horizontal", 11),
    Sketcher.Constraint("Vertical", 12),
    Sketcher.Constraint("Horizontal", 13),
    Sketcher.Constraint("Vertical", 14),
    Sketcher.Constraint("Horizontal", 15),
    Sketcher.Constraint("Horizontal", 1, 2, 4, 2),
    Sketcher.Constraint("Horizontal", 3, 2, 6, 2),
    Sketcher.Constraint("Horizontal", 5, 2, 8, 2),
    Sketcher.Constraint("Horizontal", 7, 2, 10, 2),
    Sketcher.Constraint("Horizontal", 9, 2, 12, 2),
    Sketcher.Constraint("Horizontal", 11, 2, 14, 2),
    Sketcher.Constraint("Equal", 3, 5),
    Sketcher.Constraint("Equal", 7, 9),
    Sketcher.Constraint("Equal", 11, 13),
    Sketcher.Constraint("DistanceX", 1, 2, 1, 1, 18.0),
    Sketcher.Constraint("DistanceY", 0, 2, 0, 1, 8.5),
    Sketcher.Constraint("DistanceX", -1, 1, 0, 2, 202.0),
    Sketcher.Constraint("DistanceY", -1, 1, 0, 2, 15.0),
    Sketcher.Constraint("DistanceX", -1, 1, 4, 2, 179.0),
    Sketcher.Constraint("DistanceX", -1, 1, 8, 2, 156.0),
    Sketcher.Constraint("DistanceX", -1, 1, 12, 2, 133.0),
])
pocket6 = body.newObject("PartDesign::Pocket", "Pocket005")
pocket6.Profile = sketch7
pocket6.Length = 5
pocket6.Reversed = True

# Sketch on YZ plane
sketch8 = body.newObject("Sketcher::SketchObject", "Sketch007")
sketch8.AttachmentSupport = (doc.getObject("YZ_Plane"), [""])
sketch8.MapMode = "FlatFace"
sketch8.addGeometry([
    Part.LineSegment(V(33.5, -157.538387, 0), V(24.5, -157.538387, 0)),
    Part.LineSegment(V(24.5, -157.538387, 0), V(24.5, -152.538387, 0)),
    Part.LineSegment(V(24.5, -152.538387, 0), V(33.5, -152.538387, 0)),
    Part.LineSegment(V(33.5, -152.538387, 0), V(33.5, -157.538387, 0)),
], False)
sketch8.addConstraint([
    Sketcher.Constraint("Coincident", 0, 2, 1, 1),
    Sketcher.Constraint("Coincident", 1, 2, 2, 1),
    Sketcher.Constraint("Coincident", 2, 2, 3, 1),
    Sketcher.Constraint("Coincident", 3, 2, 0, 1),
    Sketcher.Constraint("Horizontal", 0),
    Sketcher.Constraint("Vertical", 1),
    Sketcher.Constraint("Horizontal", 2),
    Sketcher.Constraint("Vertical", 3),
    Sketcher.Constraint("DistanceX", 0, 2, 0, 1, 9.0),
    Sketcher.Constraint("DistanceY", 1, 1, 1, 2, 5.0),
    Sketcher.Constraint("DistanceX", -1, 1, 0, 2, 24.5),
    Sketcher.Constraint("DistanceY", 0, 2, -1, 1, 157.538387),
])
pocket7 = body.newObject("PartDesign::Pocket", "Pocket006")
pocket7.Profile = sketch8
pocket7.Length = 4.2
pocket7.Reversed = True

# Sketch on XZ plane
sketch9 = body.newObject("Sketcher::SketchObject", "Sketch008")
sketch9.AttachmentSupport = (doc.getObject("XZ_Plane"), [""])
sketch9.MapMode = "FlatFace"
sketch9.AttachmentOffset = App.Placement(V(0, 0, -45), App.Rotation())
sketch9.addGeometry([
    Part.Circle(V(6.5, -173.5, 0), V(0, 0, 1), 2.5),
    Part.Circle(V(213.5, -173.5, 0), V(0, 0, 1), 2.5),
    Part.Circle(V(213.5, -6.5, 0), V(0, 0, 1), 2.5),
    Part.Circle(V(6.5, -6.5, 0), V(0, 0, 1), 2.5),
], False)
sketch9.addConstraint([
    Sketcher.Constraint("Equal", 0, 1),
    Sketcher.Constraint("Equal", 1, 2),
    Sketcher.Constraint("Equal", 2, 3),
    Sketcher.Constraint("Horizontal", 0, 3, 1, 3),
    Sketcher.Constraint("Horizontal", 2, 3, 3, 3),
    Sketcher.Constraint("Vertical", 1, 3, 2, 3),
    Sketcher.Constraint("Vertical", 0, 3, 3, 3),
    Sketcher.Constraint("Diameter", 0, 5.0),
    Sketcher.Constraint("DistanceX", 0, 3, 1, 3, 207.0),
    Sketcher.Constraint("DistanceY", 1, 3, 2, 3, 167.0),
    Sketcher.Constraint("DistanceX", -1, 1, 0, 3, 6.5),
    Sketcher.Constraint("DistanceY", 0, 3, -1, 1, 173.5),
])
pocket8 = body.newObject("PartDesign::Pocket", "Pocket007")
pocket8.Profile = sketch9
pocket8.Length = 40
pocket8.Reversed = True

doc.recompute()
